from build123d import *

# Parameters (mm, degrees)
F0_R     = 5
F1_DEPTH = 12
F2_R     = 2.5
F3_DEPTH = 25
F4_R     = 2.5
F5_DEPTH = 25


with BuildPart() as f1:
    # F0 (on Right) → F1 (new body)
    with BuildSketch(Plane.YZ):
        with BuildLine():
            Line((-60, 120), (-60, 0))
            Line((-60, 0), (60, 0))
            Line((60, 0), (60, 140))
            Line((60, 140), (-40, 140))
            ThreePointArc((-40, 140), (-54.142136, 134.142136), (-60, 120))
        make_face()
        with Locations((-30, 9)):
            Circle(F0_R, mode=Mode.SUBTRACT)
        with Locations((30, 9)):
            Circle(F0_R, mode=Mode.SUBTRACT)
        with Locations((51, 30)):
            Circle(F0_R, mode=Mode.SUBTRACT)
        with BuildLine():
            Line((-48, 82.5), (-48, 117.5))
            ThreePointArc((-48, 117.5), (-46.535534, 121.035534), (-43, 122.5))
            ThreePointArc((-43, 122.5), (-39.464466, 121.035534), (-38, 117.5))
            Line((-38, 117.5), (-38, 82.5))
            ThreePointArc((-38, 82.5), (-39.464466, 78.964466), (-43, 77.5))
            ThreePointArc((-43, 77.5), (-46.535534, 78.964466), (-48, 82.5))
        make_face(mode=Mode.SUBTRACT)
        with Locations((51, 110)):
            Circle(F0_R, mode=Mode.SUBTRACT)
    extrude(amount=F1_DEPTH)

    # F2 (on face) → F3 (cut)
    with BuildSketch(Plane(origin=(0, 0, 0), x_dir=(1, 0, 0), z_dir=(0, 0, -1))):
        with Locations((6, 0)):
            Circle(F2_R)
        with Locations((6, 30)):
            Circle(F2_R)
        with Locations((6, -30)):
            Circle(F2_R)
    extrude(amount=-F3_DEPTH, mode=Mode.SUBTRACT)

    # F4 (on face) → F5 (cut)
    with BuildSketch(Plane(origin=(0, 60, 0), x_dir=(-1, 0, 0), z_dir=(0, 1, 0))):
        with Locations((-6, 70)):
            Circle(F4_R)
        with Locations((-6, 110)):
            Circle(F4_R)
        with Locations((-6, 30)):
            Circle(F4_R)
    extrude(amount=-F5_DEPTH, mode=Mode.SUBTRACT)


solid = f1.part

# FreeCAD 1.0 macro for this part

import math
import FreeCAD as App
import Part
import Sketcher
from FreeCAD import Vector

doc = App.newDocument("Part")
body = doc.addObject("PartDesign::Body", "Body")

sketch1 = body.newObject("Sketcher::SketchObject", "Sketch")
sketch1.AttachmentSupport = (doc.getObject("YZ_Plane"), [""])
sketch1.MapMode = "FlatFace"
sketch1.addGeometry([
    Part.LineSegment(Vector(-60, 120, 0), Vector(-60, 0, 0)),
    Part.LineSegment(Vector(-60, 0, 0), Vector(60, 0, 0)),
    Part.LineSegment(Vector(60, 0, 0), Vector(60, 140, 0)),
    Part.LineSegment(Vector(60, 140, 0), Vector(-40, 140, 0)),
    Part.ArcOfCircle(Part.Circle(Vector(-40, 120, 0), Vector(0, 0, 1), 20), math.radians(90), math.radians(180)),
    Part.Circle(Vector(-30, 9, 0), Vector(0, 0, 1), 5),
    Part.Circle(Vector(30, 9, 0), Vector(0, 0, 1), 5),
    Part.Circle(Vector(51, 30, 0), Vector(0, 0, 1), 5),
    Part.ArcOfCircle(Part.Circle(Vector(-43, 82.5, 0), Vector(0, 0, 1), 5), math.radians(180), math.radians(270)),
    Part.LineSegment(Vector(-48, 82.5, 0), Vector(-48, 117.5, 0)),
    Part.ArcOfCircle(Part.Circle(Vector(-43, 117.5, 0), Vector(0, 0, 1), 5), math.radians(90), math.radians(180)),
    Part.ArcOfCircle(Part.Circle(Vector(-43, 117.5, 0), Vector(0, 0, 1), 5), math.radians(0), math.radians(90)),
    Part.LineSegment(Vector(-38, 117.5, 0), Vector(-38, 82.5, 0)),
    Part.ArcOfCircle(Part.Circle(Vector(-43, 82.5, 0), Vector(0, 0, 1), 5), math.radians(-90), math.radians(0)),
    Part.Circle(Vector(51, 110, 0), Vector(0, 0, 1), 5),
], False)
sketch1.addConstraint([
    Sketcher.Constraint("Coincident", 0, 2, 1, 1),
    Sketcher.Constraint("Coincident", 1, 2, 2, 1),
    Sketcher.Constraint("Coincident", 2, 2, 3, 1),
    Sketcher.Constraint("Tangent", 3, 2, 4, 1),
    Sketcher.Constraint("Tangent", 4, 2, 0, 1),
    Sketcher.Constraint("Tangent", 8, 1, 9, 1),
    Sketcher.Constraint("Tangent", 9, 2, 10, 2),
    Sketcher.Constraint("Tangent", 10, 1, 11, 2),
    Sketcher.Constraint("Tangent", 11, 1, 12, 1),
    Sketcher.Constraint("Tangent", 12, 2, 13, 2),
    Sketcher.Constraint("Tangent", 13, 1, 8, 2),
    Sketcher.Constraint("Vertical", 0),
    Sketcher.Constraint("Horizontal", 1),
    Sketcher.Constraint("Vertical", 2),
    Sketcher.Constraint("Horizontal", 3),
    Sketcher.Constraint("Vertical", 9),
    Sketcher.Constraint("Vertical", 12),
    Sketcher.Constraint("Equal", 5, 6),
    Sketcher.Constraint("Equal", 6, 7),
    Sketcher.Constraint("Equal", 7, 8),
    Sketcher.Constraint("Equal", 8, 10),
    Sketcher.Constraint("Equal", 10, 11),
    Sketcher.Constraint("Equal", 13, 14),
    Sketcher.Constraint("Symmetric", 0, 2, 1, 2, -1, 1),
    Sketcher.Constraint("Symmetric", 5, 3, 6, 3, -2),
    Sketcher.Constraint("Vertical", 7, 3, 14, 3),
    Sketcher.Constraint("Vertical", 13, 3, 10, 1),
    Sketcher.Constraint("Vertical", 10, 1, 13, 1),
    Sketcher.Constraint("Equal", 1, 0),
    Sketcher.Constraint("Diameter", 5, 10.0),
    Sketcher.Constraint("Radius", 4, 19.999999),
    Sketcher.Constraint("DistanceX", 1, 1, 1, 2, 120.0),
    Sketcher.Constraint("DistanceY", 9, 1, 9, 2, 35.0),
    Sketcher.Constraint("DistanceX", 5, 3, -1, 1, 30.0),
    Sketcher.Constraint("DistanceY", -1, 1, 5, 3, 9.0),
    Sketcher.Constraint("DistanceX", -1, 1, 7, 3, 51.0),
    Sketcher.Constraint("DistanceY", -1, 1, 7, 3, 30.0),
    Sketcher.Constraint("DistanceX", 8, 3, -1, 1, 43.0),
    Sketcher.Constraint("DistanceY", -1, 1, 14, 3, 110.0),
    Sketcher.Constraint("DistanceY", -1, 1, 8, 3, 82.5),
])
pad1 = body.newObject("PartDesign::Pad", "Pad")
pad1.Profile = sketch1
pad1.Length = 12

sketch2 = body.newObject("Sketcher::SketchObject", "Sketch001")
sketch2.AttachmentSupport = (doc.getObject("XY_Plane"), [""])
sketch2.MapMode = "FlatFace"
sketch2.addGeometry([
    Part.Circle(Vector(6, 0, 0), Vector(0, 0, 1), 2.5),
    Part.Circle(Vector(6, -30, 0), Vector(0, 0, 1), 2.5),
    Part.Circle(Vector(6, 30, 0), Vector(0, 0, 1), 2.5),
], False)
sketch2.addConstraint([
    Sketcher.Constraint("Equal", 0, 1),
    Sketcher.Constraint("Equal", 1, 2),
    Sketcher.Constraint("Symmetric", 1, 3, 2, 3, -1),
    Sketcher.Constraint("PointOnObject", 0, 3, -1),
    Sketcher.Constraint("Vertical", 0, 3, 1, 3),
    Sketcher.Constraint("Diameter", 0, 5.0),
    Sketcher.Constraint("DistanceX", -1, 1, 0, 3, 6.0),
    Sketcher.Constraint("DistanceY", 1, 3, -1, 1, 30.0),
])
pocket1 = body.newObject("PartDesign::Pocket", "Pocket")
pocket1.Profile = sketch2
pocket1.Length = 25
pocket1.Reversed = True

sketch3 = body.newObject("Sketcher::SketchObject", "Sketch002")
sketch3.AttachmentSupport = (doc.getObject("XZ_Plane"), [""])
sketch3.MapMode = "FlatFace"
sketch3.AttachmentOffset = App.Placement(Vector(0, 0, -60), App.Rotation())
sketch3.addGeometry([
    Part.Circle(Vector(6, 70, 0), Vector(0, 0, 1), 2.5),
    Part.Circle(Vector(6, 110, 0), Vector(0, 0, 1), 2.5),
    Part.Circle(Vector(6, 30, 0), Vector(0, 0, 1), 2.5),
], False)
sketch3.addConstraint([
    Sketcher.Constraint("Equal", 0, 1),
    Sketcher.Constraint("Equal", 1, 2),
    Sketcher.Constraint("Vertical", 0, 3, 1, 3),
    Sketcher.Constraint("Vertical", 1, 3, 2, 3),
    Sketcher.Constraint("Diameter", 0, 5.0),
    Sketcher.Constraint("DistanceX", -1, 1, 0, 3, 6.0),
    Sketcher.Constraint("DistanceY", -1, 1, 0, 3, 70.0),
    Sketcher.Constraint("DistanceY", -1, 1, 1, 3, 110.0),
    Sketcher.Constraint("DistanceY", -1, 1, 2, 3, 30.0),
])
pocket2 = body.newObject("PartDesign::Pocket", "Pocket001")
pocket2.Profile = sketch3
pocket2.Length = 25
pocket2.Reversed = True

doc.recompute()
